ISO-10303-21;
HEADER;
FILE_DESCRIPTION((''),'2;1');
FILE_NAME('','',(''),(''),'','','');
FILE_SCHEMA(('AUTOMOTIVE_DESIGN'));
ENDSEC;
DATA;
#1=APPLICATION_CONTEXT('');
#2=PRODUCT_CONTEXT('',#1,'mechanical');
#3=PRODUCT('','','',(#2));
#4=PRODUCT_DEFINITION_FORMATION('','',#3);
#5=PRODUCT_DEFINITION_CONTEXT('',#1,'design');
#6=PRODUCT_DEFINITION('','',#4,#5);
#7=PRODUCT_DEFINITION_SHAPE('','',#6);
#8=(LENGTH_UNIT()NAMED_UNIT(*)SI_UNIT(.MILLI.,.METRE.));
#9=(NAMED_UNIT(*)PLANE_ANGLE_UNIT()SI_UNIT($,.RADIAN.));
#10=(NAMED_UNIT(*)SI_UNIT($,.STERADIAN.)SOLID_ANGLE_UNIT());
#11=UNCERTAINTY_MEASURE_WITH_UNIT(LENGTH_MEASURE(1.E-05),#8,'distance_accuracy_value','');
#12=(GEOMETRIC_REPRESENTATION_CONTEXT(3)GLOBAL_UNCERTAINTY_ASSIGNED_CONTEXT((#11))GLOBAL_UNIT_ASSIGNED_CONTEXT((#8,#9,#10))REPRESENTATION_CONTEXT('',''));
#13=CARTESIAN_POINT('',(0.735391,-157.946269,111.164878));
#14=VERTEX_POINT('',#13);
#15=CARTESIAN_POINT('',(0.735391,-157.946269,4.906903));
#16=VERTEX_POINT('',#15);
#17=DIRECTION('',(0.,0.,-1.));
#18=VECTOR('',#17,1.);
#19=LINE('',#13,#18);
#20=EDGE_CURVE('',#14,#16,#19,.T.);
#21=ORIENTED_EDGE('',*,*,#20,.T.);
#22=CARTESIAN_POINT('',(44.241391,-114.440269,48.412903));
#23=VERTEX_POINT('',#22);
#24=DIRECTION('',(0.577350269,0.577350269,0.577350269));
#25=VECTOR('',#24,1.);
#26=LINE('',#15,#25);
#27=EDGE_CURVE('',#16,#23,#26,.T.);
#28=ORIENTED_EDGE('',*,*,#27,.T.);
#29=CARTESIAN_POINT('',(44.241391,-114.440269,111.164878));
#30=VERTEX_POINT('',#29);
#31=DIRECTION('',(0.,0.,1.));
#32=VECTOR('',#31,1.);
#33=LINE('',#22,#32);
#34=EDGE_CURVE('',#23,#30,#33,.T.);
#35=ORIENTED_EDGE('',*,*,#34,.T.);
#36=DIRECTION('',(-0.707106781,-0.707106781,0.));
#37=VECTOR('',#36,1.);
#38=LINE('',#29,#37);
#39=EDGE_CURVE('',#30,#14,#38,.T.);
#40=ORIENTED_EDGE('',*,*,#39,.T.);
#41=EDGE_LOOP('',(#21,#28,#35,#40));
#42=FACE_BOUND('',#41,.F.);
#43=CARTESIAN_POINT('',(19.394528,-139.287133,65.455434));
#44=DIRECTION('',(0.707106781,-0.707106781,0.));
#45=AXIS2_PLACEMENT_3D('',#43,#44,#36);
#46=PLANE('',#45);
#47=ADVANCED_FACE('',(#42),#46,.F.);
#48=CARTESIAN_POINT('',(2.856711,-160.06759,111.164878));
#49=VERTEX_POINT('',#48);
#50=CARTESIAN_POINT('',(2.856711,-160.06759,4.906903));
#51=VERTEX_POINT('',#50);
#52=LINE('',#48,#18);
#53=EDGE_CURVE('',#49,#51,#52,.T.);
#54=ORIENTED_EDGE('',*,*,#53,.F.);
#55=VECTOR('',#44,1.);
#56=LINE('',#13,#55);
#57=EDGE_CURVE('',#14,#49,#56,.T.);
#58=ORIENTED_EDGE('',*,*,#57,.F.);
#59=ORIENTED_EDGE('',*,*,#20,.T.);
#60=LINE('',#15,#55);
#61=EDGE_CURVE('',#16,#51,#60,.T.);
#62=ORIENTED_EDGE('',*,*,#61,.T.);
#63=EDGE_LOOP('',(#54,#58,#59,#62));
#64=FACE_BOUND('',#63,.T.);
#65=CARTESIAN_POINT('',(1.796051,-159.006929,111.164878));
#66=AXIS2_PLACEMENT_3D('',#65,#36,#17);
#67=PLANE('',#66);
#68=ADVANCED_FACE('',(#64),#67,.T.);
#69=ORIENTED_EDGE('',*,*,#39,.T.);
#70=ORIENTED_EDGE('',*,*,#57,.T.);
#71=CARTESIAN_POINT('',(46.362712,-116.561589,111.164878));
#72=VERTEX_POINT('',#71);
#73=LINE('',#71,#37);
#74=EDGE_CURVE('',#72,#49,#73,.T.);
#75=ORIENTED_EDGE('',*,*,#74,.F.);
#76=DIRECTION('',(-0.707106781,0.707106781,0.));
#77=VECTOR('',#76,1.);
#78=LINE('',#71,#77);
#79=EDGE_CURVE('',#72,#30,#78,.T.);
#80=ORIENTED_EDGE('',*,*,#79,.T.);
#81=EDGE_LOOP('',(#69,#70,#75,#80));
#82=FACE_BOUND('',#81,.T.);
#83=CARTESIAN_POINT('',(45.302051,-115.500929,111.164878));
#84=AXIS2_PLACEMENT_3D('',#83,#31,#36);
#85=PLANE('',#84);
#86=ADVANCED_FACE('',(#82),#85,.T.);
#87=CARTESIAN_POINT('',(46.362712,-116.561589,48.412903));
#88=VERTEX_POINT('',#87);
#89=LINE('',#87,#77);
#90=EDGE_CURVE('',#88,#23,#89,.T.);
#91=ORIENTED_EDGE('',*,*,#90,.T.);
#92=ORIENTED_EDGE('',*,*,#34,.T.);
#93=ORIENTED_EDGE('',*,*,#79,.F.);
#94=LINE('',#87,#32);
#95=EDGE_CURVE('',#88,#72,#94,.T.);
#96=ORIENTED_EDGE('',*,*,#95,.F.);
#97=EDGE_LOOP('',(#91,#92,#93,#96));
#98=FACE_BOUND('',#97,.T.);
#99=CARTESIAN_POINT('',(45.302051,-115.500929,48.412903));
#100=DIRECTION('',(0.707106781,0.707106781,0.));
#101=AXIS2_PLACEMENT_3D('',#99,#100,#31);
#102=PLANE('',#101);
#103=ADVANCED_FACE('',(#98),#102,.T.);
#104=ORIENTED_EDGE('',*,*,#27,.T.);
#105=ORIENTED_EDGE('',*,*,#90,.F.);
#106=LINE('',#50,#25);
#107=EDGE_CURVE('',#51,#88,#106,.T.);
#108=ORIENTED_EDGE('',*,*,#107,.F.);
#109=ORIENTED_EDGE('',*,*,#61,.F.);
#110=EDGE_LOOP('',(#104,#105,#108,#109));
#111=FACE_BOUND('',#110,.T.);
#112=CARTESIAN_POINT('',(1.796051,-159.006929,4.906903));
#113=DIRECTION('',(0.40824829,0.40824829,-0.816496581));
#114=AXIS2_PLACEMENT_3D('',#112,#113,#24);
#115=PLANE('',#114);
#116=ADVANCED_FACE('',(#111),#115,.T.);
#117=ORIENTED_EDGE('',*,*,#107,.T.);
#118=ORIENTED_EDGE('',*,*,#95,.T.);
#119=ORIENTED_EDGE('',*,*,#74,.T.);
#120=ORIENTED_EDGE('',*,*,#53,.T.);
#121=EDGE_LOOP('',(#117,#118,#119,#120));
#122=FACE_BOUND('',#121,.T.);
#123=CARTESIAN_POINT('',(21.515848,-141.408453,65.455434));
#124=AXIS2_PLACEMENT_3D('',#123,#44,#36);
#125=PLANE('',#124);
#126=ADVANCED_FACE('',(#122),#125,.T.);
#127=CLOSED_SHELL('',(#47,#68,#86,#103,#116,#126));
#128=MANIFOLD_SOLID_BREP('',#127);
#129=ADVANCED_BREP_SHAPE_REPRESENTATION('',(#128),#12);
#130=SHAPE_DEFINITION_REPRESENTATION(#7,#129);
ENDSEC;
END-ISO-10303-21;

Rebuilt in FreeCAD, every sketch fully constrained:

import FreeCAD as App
import Part
import Sketcher
Q = App.Units.Quantity

doc = App.newDocument("Part")
body = doc.addObject("PartDesign::Body", "Body")

sketch1 = body.newObject("Sketcher::SketchObject", "Sketch")
sketch1.Placement = App.Placement(App.Vector(80.40149, -80.40149, 0), App.Rotation(App.Vector(-0.707106781, -0.707106781, 0), App.Vector(0, 0, -0.999999999), App.Vector(0.707106781, -0.707106781, 0), "ZXY"))
sketch1.addGeometry(Part.LineSegment(App.Vector(50, -111, 0), App.Vector(111, -111, 0)), False)
sketch1.addGeometry(Part.LineSegment(App.Vector(111, -111, 0), App.Vector(111, -5, 0)), False)
sketch1.addGeometry(Part.LineSegment(App.Vector(111, -5, 0), App.Vector(50, -48, 0)), False)
sketch1.addGeometry(Part.LineSegment(App.Vector(50, -48, 0), App.Vector(50, -111, 0)), False)
sketch1.addConstraint(Sketcher.Constraint("Coincident", 0, 2, 1, 1))
sketch1.addConstraint(Sketcher.Constraint("Coincident", 1, 2, 2, 1))
sketch1.addConstraint(Sketcher.Constraint("Coincident", 2, 2, 3, 1))
sketch1.addConstraint(Sketcher.Constraint("Coincident", 3, 2, 0, 1))
sketch1.addConstraint(Sketcher.Constraint("Horizontal", 0))
sketch1.addConstraint(Sketcher.Constraint("Vertical", 1))
sketch1.addConstraint(Sketcher.Constraint("Vertical", 3))
sketch1.addConstraint(Sketcher.Constraint("DistanceY", 2, 2, 1, 2, Q("43.506 mm")))
sketch1.addConstraint(Sketcher.Constraint("DistanceX", 0, 1, 0, 2, Q("61.526775 mm")))
sketch1.addConstraint(Sketcher.Constraint("DistanceY", 1, 1, 1, 2, Q("106.257975 mm")))
sketch1.addConstraint(Sketcher.Constraint("DistanceX", -1, 1, 0, 2, Q("111.164878 mm")))
sketch1.addConstraint(Sketcher.Constraint("DistanceY", 0, 2, -1, 1, Q("111.164878 mm")))
pad1 = body.newObject("PartDesign::Pad", "Pad")
pad1.Profile = sketch1
pad1.Length = 3
pad1.Midplane = True

doc.recompute()
